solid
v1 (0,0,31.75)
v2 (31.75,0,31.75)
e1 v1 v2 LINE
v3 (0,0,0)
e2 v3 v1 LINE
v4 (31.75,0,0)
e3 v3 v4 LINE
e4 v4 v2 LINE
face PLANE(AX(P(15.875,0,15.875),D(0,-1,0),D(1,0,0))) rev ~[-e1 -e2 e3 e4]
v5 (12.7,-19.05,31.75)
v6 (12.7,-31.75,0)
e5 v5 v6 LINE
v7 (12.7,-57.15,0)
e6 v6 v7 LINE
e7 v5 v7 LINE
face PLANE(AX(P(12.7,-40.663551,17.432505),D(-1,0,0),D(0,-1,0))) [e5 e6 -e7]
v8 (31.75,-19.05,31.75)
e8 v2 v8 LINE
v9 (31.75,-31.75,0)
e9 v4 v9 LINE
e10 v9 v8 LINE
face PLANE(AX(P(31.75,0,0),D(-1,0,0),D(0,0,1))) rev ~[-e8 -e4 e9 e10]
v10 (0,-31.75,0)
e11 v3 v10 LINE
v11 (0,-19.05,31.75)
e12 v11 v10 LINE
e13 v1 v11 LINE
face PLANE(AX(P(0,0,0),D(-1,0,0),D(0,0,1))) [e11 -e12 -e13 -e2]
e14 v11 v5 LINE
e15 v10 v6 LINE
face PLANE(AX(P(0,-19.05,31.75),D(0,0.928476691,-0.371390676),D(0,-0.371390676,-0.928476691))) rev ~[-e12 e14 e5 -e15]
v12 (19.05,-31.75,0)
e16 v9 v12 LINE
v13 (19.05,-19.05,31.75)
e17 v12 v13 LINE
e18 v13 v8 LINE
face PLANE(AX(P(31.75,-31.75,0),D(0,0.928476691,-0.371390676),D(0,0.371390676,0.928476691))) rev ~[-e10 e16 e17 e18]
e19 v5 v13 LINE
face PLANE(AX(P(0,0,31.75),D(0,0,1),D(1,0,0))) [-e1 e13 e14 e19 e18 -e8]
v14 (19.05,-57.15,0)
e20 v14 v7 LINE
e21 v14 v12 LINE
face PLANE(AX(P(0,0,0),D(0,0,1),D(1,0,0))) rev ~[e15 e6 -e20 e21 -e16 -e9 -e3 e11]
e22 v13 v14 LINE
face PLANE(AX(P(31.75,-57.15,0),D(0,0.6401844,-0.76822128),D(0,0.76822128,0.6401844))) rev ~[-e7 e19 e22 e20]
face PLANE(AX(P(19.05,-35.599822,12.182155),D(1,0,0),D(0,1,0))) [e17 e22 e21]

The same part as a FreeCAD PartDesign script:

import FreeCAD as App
import Part
import Sketcher
from FreeCAD import Vector
Q = App.Units.Quantity

doc = App.newDocument("Part")
body = doc.addObject("PartDesign::Body", "Body")

# Sketch on XZ plane
sketch1 = body.newObject("Sketcher::SketchObject", "Sketch")
sketch1.AttachmentSupport = (doc.getObject("XZ_Plane"), [""])
sketch1.MapMode = "FlatFace"
sketch1.addGeometry(Part.LineSegment(Vector(0, 32, 0), Vector(0, 0, 0)), False)
sketch1.addGeometry(Part.LineSegment(Vector(0, 0, 0), Vector(32, 0, 0)), False)
sketch1.addGeometry(Part.LineSegment(Vector(32, 0, 0), Vector(32, 32, 0)), False)
sketch1.addGeometry(Part.LineSegment(Vector(32, 32, 0), Vector(0, 32, 0)), False)
sketch1.addConstraint(Sketcher.Constraint("Coincident", 0, 2, 1, 1))
sketch1.addConstraint(Sketcher.Constraint("Coincident", 1, 2, 2, 1))
sketch1.addConstraint(Sketcher.Constraint("Coincident", 2, 2, 3, 1))
sketch1.addConstraint(Sketcher.Constraint("Coincident", 3, 2, 0, 1))
sketch1.addConstraint(Sketcher.Constraint("Vertical", 0))
sketch1.addConstraint(Sketcher.Constraint("Horizontal", 1))
sketch1.addConstraint(Sketcher.Constraint("Vertical", 2))
sketch1.addConstraint(Sketcher.Constraint("Horizontal", 3))
sketch1.addConstraint(Sketcher.Constraint("Coincident", 0, 2, -1, 1))
sketch1.addConstraint(Sketcher.Constraint("Equal", 3, 0))
sketch1.addConstraint(Sketcher.Constraint("DistanceX", 1, 1, 1, 2, Q("1.25 in")))
pad1 = body.newObject("PartDesign::Pad", "Pad")
pad1.Profile = sketch1
pad1.Length = Q("2.25 in")

# Sketch on YZ plane
sketch2 = body.newObject("Sketcher::SketchObject", "Sketch001")
sketch2.AttachmentSupport = (doc.getObject("YZ_Plane"), [""])
sketch2.MapMode = "FlatFace"
sketch2.addGeometry(Part.LineSegment(Vector(-57, 32, 0), Vector(-19, 32, 0)), False)
sketch2.addGeometry(Part.LineSegment(Vector(-19, 32, 0), Vector(-32, 0, 0)), False)
sketch2.addGeometry(Part.LineSegment(Vector(-32, 0, 0), Vector(-57, 0, 0)), False)
sketch2.addGeometry(Part.LineSegment(Vector(-57, 0, 0), Vector(-57, 32, 0)), False)
sketch2.addConstraint(Sketcher.Constraint("Coincident", 0, 2, 1, 1))
sketch2.addConstraint(Sketcher.Constraint("Coincident", 1, 2, 2, 1))
sketch2.addConstraint(Sketcher.Constraint("Coincident", 2, 2, 3, 1))
sketch2.addConstraint(Sketcher.Constraint("Coincident", 3, 2, 0, 1))
sketch2.addConstraint(Sketcher.Constraint("Horizontal", 0))
sketch2.addConstraint(Sketcher.Constraint("Horizontal", 2))
sketch2.addConstraint(Sketcher.Constraint("Vertical", 3))
sketch2.addConstraint(Sketcher.Constraint("PointOnObject", 1, 2, -1))
sketch2.addConstraint(Sketcher.Constraint("DistanceX", 2, 2, 2, 1, Q("1 in")))
sketch2.addConstraint(Sketcher.Constraint("DistanceX", 0, 1, 0, 2, Q("1.5 in")))
sketch2.addConstraint(Sketcher.Constraint("DistanceY", 3, 1, 3, 2, Q("1.25 in")))
sketch2.addConstraint(Sketcher.Constraint("DistanceX", 0, 2, -1, 1, Q("0.75 in")))
pocket1 = body.newObject("PartDesign::Pocket", "Pocket")
pocket1.Profile = sketch2
pocket1.Length = Q("0.5 in")
pocket1.Reversed = True

# Sketch on YZ plane
sketch3 = body.newObject("Sketcher::SketchObject", "Sketch002")
sketch3.AttachmentSupport = (doc.getObject("YZ_Plane"), [""])
sketch3.MapMode = "FlatFace"
sketch3.AttachmentOffset = App.Placement(Vector(0, 0, 0.75 * 25.4), App.Rotation())
sketch3.addGeometry(Part.LineSegment(Vector(-57, 0, 0), Vector(-19, 32, 0)), False)
sketch3.addGeometry(Part.LineSegment(Vector(-19, 32, 0), Vector(-57, 32, 0)), False)
sketch3.addGeometry(Part.LineSegment(Vector(-57, 32, 0), Vector(-57, 0, 0)), False)
sketch3.addConstraint(Sketcher.Constraint("Coincident", 0, 2, 1, 1))
sketch3.addConstraint(Sketcher.Constraint("Coincident", 1, 2, 2, 1))
sketch3.addConstraint(Sketcher.Constraint("Coincident", 2, 2, 0, 1))
sketch3.addConstraint(Sketcher.Constraint("Horizontal", 1))
sketch3.addConstraint(Sketcher.Constraint("Vertical", 2))
sketch3.addConstraint(Sketcher.Constraint("PointOnObject", 2, 2, -1))
sketch3.addConstraint(Sketcher.Constraint("DistanceX", 1, 2, 1, 1, Q("1.5 in")))
sketch3.addConstraint(Sketcher.Constraint("DistanceY", 2, 2, 2, 1, Q("1.25 in")))
sketch3.addConstraint(Sketcher.Constraint("DistanceX", 0, 2, -1, 1, Q("0.75 in")))
pocket2 = body.newObject("PartDesign::Pocket", "Pocket001")
pocket2.Profile = sketch3
pocket2.Length = Q("0.5 in")

# Sketch on YZ plane
sketch4 = body.newObject("Sketcher::SketchObject", "Sketch003")
sketch4.AttachmentSupport = (doc.getObject("YZ_Plane"), [""])
sketch4.MapMode = "FlatFace"
sketch4.AttachmentOffset = App.Placement(Vector(0, 0, 1.25 * 25.4), App.Rotation())
sketch4.addGeometry(Part.LineSegment(Vector(-57, 32, 0), Vector(-57, 0, 0)), False)
sketch4.addGeometry(Part.LineSegment(Vector(-57, 0, 0), Vector(-19, 32, 0)), False)
sketch4.addGeometry(Part.LineSegment(Vector(-19, 32, 0), Vector(-57, 32, 0)), False)
sketch4.addConstraint(Sketcher.Constraint("Coincident", 0, 2, 1, 1))
sketch4.addConstraint(Sketcher.Constraint("Coincident", 1, 2, 2, 1))
sketch4.addConstraint(Sketcher.Constraint("Coincident", 2, 2, 0, 1))
sketch4.addConstraint(Sketcher.Constraint("Vertical", 0))
sketch4.addConstraint(Sketcher.Constraint("Horizontal", 2))
sketch4.addConstraint(Sketcher.Constraint("PointOnObject", 0, 2, -1))
sketch4.addConstraint(Sketcher.Constraint("DistanceX", 2, 2, 2, 1, Q("1.5 in")))
sketch4.addConstraint(Sketcher.Constraint("DistanceY", 0, 2, 0, 1, Q("1.25 in")))
sketch4.addConstraint(Sketcher.Constraint("DistanceX", 0, 2, -1, 1, Q("2.25 in")))
pocket3 = body.newObject("PartDesign::Pocket", "Pocket002")
pocket3.Profile = sketch4
pocket3.Length = Q("0.5 in")

# Sketch on YZ plane
sketch5 = body.newObject("Sketcher::SketchObject", "Sketch004")
sketch5.AttachmentSupport = (doc.getObject("YZ_Plane"), [""])
sketch5.MapMode = "FlatFace"
sketch5.AttachmentOffset = App.Placement(Vector(0, 0, 1.25 * 25.4), App.Rotation())
sketch5.addGeometry(Part.LineSegment(Vector(-32, 0, 0), Vector(-19, 32, 0)), False)
sketch5.addGeometry(Part.LineSegment(Vector(-19, 32, 0), Vector(-57, 0, 0)), False)
sketch5.addGeometry(Part.LineSegment(Vector(-57, 0, 0), Vector(-32, 0, 0)), False)
sketch5.addConstraint(Sketcher.Constraint("Coincident", 0, 2, 1, 1))
sketch5.addConstraint(Sketcher.Constraint("Coincident", 1, 2, 2, 1))
sketch5.addConstraint(Sketcher.Constraint("Coincident", 2, 2, 0, 1))
sketch5.addConstraint(Sketcher.Constraint("Horizontal", 2))
sketch5.addConstraint(Sketcher.Constraint("PointOnObject", 1, 2, -1))
sketch5.addConstraint(Sketcher.Constraint("DistanceX", 2, 1, 2, 2, Q("1 in")))
sketch5.addConstraint(Sketcher.Constraint("DistanceX", 1, 2, 0, 2, Q("1.5 in")))
sketch5.addConstraint(Sketcher.Constraint("DistanceX", 0, 2, -1, 1, Q("0.75 in")))
sketch5.addConstraint(Sketcher.Constraint("DistanceY", -1, 1, 0, 2, Q("1.25 in")))
pocket4 = body.newObject("PartDesign::Pocket", "Pocket003")
pocket4.Profile = sketch5
pocket4.Length = Q("0.5 in")

doc.recompute()
